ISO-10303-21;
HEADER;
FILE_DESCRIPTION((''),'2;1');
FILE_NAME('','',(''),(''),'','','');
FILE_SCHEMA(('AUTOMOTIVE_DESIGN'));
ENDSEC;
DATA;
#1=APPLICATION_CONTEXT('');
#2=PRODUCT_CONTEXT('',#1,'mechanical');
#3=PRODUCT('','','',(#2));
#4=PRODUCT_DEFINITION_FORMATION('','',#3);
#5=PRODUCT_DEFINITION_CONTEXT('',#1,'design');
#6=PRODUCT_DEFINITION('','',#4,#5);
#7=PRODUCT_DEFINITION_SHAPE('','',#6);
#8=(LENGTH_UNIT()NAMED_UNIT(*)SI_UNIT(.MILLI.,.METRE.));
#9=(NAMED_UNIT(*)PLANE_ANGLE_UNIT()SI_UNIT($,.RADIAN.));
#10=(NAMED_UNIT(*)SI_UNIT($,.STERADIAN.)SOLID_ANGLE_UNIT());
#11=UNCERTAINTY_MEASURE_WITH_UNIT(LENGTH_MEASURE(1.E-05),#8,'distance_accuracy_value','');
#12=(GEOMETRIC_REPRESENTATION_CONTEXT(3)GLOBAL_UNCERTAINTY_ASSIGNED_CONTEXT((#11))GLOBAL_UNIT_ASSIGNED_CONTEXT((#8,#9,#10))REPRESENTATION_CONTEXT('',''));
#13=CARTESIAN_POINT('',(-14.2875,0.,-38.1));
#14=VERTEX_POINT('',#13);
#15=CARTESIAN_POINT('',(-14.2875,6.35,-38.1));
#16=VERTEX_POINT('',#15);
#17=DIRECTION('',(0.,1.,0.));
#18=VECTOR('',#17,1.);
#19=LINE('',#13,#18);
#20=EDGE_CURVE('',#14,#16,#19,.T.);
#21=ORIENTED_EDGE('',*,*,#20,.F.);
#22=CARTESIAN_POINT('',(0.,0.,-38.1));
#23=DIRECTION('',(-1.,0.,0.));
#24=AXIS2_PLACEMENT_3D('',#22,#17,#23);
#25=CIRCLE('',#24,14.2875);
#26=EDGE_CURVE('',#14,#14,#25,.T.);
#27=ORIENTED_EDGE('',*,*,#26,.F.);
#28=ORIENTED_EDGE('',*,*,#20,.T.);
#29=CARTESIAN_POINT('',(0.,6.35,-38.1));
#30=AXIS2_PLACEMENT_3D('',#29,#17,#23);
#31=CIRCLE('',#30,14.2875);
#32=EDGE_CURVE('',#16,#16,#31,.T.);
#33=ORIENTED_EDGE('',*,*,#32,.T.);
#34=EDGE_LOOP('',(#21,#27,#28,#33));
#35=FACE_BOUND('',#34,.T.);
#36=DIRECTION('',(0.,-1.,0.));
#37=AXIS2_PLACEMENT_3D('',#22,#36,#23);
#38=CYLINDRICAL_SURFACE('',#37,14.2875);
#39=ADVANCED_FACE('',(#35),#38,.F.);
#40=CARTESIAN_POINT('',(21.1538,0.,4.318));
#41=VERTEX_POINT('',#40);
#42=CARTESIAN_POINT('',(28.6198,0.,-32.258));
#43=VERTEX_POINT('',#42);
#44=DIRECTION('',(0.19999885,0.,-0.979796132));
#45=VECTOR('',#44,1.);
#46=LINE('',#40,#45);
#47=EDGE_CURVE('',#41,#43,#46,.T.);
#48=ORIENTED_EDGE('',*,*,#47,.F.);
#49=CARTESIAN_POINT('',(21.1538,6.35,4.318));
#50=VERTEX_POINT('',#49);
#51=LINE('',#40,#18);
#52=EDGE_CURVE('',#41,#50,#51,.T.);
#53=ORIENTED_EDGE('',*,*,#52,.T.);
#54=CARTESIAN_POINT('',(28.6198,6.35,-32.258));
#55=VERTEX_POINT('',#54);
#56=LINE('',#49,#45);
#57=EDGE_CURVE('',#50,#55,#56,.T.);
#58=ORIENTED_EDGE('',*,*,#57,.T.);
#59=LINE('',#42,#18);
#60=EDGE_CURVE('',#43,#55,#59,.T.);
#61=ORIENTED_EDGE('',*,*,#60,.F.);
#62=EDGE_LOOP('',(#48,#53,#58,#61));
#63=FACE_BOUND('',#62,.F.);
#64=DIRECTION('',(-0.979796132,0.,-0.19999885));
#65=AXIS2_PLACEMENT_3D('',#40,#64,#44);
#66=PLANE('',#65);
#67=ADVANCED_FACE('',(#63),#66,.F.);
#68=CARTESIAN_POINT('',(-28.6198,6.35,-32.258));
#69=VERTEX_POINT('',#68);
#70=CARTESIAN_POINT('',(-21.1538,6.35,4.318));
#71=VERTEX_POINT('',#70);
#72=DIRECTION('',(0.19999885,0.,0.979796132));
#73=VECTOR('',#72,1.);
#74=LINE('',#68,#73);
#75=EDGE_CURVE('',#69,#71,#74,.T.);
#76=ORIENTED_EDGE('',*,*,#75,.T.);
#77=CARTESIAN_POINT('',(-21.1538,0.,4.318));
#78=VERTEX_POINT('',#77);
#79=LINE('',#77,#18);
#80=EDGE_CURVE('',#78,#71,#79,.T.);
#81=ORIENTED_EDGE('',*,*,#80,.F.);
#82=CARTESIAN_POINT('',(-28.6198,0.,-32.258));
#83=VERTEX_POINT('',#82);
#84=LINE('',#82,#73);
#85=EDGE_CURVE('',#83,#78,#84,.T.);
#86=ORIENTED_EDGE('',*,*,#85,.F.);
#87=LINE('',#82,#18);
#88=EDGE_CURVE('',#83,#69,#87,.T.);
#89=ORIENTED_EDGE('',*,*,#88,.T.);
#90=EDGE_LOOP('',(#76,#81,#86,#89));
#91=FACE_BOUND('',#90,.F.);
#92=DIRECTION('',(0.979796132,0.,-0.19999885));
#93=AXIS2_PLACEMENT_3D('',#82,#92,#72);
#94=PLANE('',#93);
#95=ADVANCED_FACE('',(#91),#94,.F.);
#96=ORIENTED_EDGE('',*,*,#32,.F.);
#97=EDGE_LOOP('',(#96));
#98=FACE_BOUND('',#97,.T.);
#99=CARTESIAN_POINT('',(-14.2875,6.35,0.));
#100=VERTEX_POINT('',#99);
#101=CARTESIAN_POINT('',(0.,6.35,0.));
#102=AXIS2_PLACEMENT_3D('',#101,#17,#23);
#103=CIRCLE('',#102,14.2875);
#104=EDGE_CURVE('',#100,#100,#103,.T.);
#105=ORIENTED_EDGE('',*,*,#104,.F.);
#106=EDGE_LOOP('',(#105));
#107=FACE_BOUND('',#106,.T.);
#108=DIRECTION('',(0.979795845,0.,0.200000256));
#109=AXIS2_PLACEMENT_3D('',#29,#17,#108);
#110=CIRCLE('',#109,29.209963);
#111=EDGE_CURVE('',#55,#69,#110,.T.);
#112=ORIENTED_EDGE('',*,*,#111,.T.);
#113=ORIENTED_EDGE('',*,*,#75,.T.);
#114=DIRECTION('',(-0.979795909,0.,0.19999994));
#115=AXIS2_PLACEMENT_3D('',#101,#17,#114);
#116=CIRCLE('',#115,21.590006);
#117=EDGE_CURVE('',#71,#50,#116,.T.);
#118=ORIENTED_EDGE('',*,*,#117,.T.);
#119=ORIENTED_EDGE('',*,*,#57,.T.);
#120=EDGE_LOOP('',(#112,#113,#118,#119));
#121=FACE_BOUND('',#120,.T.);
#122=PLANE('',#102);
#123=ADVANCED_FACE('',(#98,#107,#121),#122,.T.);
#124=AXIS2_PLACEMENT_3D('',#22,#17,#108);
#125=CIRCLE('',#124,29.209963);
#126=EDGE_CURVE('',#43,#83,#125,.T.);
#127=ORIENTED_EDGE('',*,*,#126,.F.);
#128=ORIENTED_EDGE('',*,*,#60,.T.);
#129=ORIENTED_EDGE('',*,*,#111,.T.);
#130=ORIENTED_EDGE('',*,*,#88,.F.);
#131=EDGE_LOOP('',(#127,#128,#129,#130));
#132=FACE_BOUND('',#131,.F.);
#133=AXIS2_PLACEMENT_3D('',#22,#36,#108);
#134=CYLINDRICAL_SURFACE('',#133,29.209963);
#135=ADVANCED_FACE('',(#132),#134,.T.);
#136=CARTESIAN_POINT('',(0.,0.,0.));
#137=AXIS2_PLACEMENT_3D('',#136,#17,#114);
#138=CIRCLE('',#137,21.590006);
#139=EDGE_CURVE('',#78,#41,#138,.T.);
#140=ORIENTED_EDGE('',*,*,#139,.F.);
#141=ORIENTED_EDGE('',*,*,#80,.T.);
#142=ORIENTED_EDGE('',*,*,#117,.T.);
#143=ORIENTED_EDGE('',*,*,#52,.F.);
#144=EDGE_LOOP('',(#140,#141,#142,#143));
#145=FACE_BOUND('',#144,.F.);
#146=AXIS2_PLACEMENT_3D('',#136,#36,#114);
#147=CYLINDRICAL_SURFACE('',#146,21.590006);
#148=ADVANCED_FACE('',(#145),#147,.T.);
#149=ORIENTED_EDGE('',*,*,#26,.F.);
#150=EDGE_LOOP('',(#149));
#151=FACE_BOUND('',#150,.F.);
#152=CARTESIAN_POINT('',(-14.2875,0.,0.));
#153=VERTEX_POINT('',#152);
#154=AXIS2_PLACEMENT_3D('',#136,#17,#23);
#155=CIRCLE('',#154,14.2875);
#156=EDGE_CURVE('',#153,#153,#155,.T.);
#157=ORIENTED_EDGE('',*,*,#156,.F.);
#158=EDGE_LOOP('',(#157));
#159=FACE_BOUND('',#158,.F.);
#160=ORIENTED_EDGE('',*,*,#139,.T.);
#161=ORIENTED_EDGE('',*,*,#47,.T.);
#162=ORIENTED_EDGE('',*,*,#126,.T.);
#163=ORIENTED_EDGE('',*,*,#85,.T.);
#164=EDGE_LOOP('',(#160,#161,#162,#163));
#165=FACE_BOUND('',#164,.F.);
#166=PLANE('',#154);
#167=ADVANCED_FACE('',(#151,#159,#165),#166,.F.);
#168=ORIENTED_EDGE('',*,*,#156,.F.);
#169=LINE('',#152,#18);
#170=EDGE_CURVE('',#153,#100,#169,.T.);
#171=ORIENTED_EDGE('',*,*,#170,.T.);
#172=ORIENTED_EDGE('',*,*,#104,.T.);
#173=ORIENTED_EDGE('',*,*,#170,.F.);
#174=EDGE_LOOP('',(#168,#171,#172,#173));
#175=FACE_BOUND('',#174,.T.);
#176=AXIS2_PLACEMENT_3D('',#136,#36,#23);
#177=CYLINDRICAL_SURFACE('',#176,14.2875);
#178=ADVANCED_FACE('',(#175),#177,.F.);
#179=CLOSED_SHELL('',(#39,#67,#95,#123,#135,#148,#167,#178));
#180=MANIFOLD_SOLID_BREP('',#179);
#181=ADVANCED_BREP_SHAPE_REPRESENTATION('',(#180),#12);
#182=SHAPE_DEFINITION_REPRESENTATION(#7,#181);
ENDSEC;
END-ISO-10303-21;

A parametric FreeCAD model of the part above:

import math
import FreeCAD as App
import Part
import Sketcher
Q = App.Units.Quantity

doc = App.newDocument("Part")
body = doc.addObject("PartDesign::Body", "Body")

# Sketch on XZ plane
sketch1 = doc.addObject("Sketcher::SketchObject", "Sketch")
body.addObject(sketch1)
sketch1.AttachmentSupport = (doc.XZ_Plane, [""])
sketch1.MapMode = "FlatFace"
sketch1.addGeometry(Part.ArcOfCircle(Part.Circle(App.Vector(0, -38.1, 0), App.Vector(0, 0, 1), 29.209963), math.radians(168.463026), math.radians(371.536974)), False)
sketch1.addGeometry(Part.LineSegment(App.Vector(-28.6198, -32.258, 0), App.Vector(-21.1538, 4.318, 0)), False)
sketch1.addGeometry(Part.ArcOfCircle(Part.Circle(App.Vector(0, 0, 0), App.Vector(0, 0, 1), 21.590006), math.radians(11.536956), math.radians(168.463044)), False)
sketch1.addGeometry(Part.LineSegment(App.Vector(21.1538, 4.318, 0), App.Vector(28.6198, -32.258, 0)), False)
sketch1.addGeometry(Part.Circle(App.Vector(0, -38.1, 0), App.Vector(0, 0, 1), 14.2875), False)
sketch1.addGeometry(Part.Circle(App.Vector(0, 0, 0), App.Vector(0, 0, 1), 14.2875), False)
sketch1.addConstraint(Sketcher.Constraint("Tangent", 0, 1, 1, 1))
sketch1.addConstraint(Sketcher.Constraint("Tangent", 1, 2, 2, 2))
sketch1.addConstraint(Sketcher.Constraint("Tangent", 2, 1, 3, 1))
sketch1.addConstraint(Sketcher.Constraint("Tangent", 3, 2, 0, 2))
sketch1.addConstraint(Sketcher.Constraint("Coincident", 2, 3, -1, 1))
sketch1.addConstraint(Sketcher.Constraint("Coincident", 5, 3, -1, 1))
sketch1.addConstraint(Sketcher.Constraint("Coincident", 4, 3, 0, 3))
sketch1.addConstraint(Sketcher.Constraint("Equal", 4, 5))
sketch1.addConstraint(Sketcher.Constraint("PointOnObject", 0, 3, -2))
sketch1.addConstraint(Sketcher.Constraint("Diameter", 4, Q("1.125 in")))
sketch1.addConstraint(Sketcher.Constraint("Radius", 0, Q("1.15 in")))
sketch1.addConstraint(Sketcher.Constraint("Radius", 2, Q("0.85 in")))
sketch1.addConstraint(Sketcher.Constraint("DistanceY", 0, 3, -1, 1, Q("1.5 in")))
pad1 = doc.addObject("PartDesign::Pad", "Pad")
body.addObject(pad1)
pad1.Profile = sketch1
pad1.Length = Q("0.25 in")
pad1.Reversed = True

doc.recompute()
